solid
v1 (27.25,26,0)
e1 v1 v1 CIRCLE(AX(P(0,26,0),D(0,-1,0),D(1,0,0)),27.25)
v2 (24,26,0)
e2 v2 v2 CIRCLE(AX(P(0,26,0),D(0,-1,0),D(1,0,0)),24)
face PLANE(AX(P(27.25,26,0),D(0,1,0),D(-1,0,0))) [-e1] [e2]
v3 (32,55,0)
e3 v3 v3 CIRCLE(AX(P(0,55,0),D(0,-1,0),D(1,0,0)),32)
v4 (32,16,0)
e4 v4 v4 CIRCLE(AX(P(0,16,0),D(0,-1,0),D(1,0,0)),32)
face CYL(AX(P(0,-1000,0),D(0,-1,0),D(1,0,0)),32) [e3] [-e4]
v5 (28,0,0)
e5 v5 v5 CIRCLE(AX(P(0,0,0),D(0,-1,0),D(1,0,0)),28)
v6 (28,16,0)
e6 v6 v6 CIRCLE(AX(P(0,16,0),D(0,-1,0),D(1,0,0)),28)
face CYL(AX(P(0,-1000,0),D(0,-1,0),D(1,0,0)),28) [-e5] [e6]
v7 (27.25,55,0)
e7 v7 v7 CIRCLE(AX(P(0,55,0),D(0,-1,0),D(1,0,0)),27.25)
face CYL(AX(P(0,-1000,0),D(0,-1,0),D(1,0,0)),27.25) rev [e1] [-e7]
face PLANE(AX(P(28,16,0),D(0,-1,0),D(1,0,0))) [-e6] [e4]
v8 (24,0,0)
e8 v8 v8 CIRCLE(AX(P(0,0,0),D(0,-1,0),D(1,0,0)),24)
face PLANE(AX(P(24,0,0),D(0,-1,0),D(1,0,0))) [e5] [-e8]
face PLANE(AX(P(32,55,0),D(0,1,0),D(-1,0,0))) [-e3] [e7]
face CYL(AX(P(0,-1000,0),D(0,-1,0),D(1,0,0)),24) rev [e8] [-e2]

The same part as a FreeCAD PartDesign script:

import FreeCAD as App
import Part
import Sketcher
from FreeCAD import Vector

doc = App.newDocument("Part")
body = doc.addObject("PartDesign::Body", "Body")

# Sketch on XY plane
sketch1 = body.newObject("Sketcher::SketchObject", "Sketch")
sketch1.AttachmentSupport = (doc.getObject("XY_Plane"), [""])
sketch1.MapMode = "FlatFace"
sketch1.addGeometry(Part.LineSegment(Vector(24, 0, 0), Vector(28, 0, 0)), False)
sketch1.addGeometry(Part.LineSegment(Vector(28, 0, 0), Vector(28, 16, 0)), False)
sketch1.addGeometry(Part.LineSegment(Vector(28, 16, 0), Vector(32, 16, 0)), False)
sketch1.addGeometry(Part.LineSegment(Vector(32, 16, 0), Vector(32, 55, 0)), False)
sketch1.addGeometry(Part.LineSegment(Vector(32, 55, 0), Vector(27.2, 55, 0)), False)
sketch1.addGeometry(Part.LineSegment(Vector(27.2, 55, 0), Vector(27.2, 26, 0)), False)
sketch1.addGeometry(Part.LineSegment(Vector(27.2, 26, 0), Vector(24, 26, 0)), False)
sketch1.addGeometry(Part.LineSegment(Vector(24, 26, 0), Vector(24, 0, 0)), False)
sketch1.addConstraint(Sketcher.Constraint("Coincident", 0, 2, 1, 1))
sketch1.addConstraint(Sketcher.Constraint("Coincident", 1, 2, 2, 1))
sketch1.addConstraint(Sketcher.Constraint("Coincident", 2, 2, 3, 1))
sketch1.addConstraint(Sketcher.Constraint("Coincident", 3, 2, 4, 1))
sketch1.addConstraint(Sketcher.Constraint("Coincident", 4, 2, 5, 1))
sketch1.addConstraint(Sketcher.Constraint("Coincident", 5, 2, 6, 1))
sketch1.addConstraint(Sketcher.Constraint("Coincident", 6, 2, 7, 1))
sketch1.addConstraint(Sketcher.Constraint("Coincident", 7, 2, 0, 1))
sketch1.addConstraint(Sketcher.Constraint("Horizontal", 0))
sketch1.addConstraint(Sketcher.Constraint("Vertical", 1))
sketch1.addConstraint(Sketcher.Constraint("Horizontal", 2))
sketch1.addConstraint(Sketcher.Constraint("Vertical", 3))
sketch1.addConstraint(Sketcher.Constraint("Horizontal", 4))
sketch1.addConstraint(Sketcher.Constraint("Vertical", 5))
sketch1.addConstraint(Sketcher.Constraint("Horizontal", 6))
sketch1.addConstraint(Sketcher.Constraint("Vertical", 7))
sketch1.addConstraint(Sketcher.Constraint("PointOnObject", 0, 2, -1))
sketch1.addConstraint(Sketcher.Constraint("Equal", 0, 2))
sketch1.addConstraint(Sketcher.Constraint("DistanceX", 0, 1, 0, 2, 4.0))
sketch1.addConstraint(Sketcher.Constraint("DistanceY", 1, 1, 1, 2, 16.0))
sketch1.addConstraint(Sketcher.Constraint("DistanceY", 3, 1, 3, 2, 39.0))
sketch1.addConstraint(Sketcher.Constraint("DistanceY", 5, 2, 5, 1, 29.0))
sketch1.addConstraint(Sketcher.Constraint("DistanceX", -1, 1, 0, 2, 28.0))
sketch1.addConstraint(Sketcher.Constraint("DistanceX", 4, 2, 4, 1, 4.75))
revolution = body.newObject("PartDesign::Revolution", "Revolution")
revolution.Profile = sketch1
revolution.ReferenceAxis = (sketch1, ["V_Axis"])
revolution.Angle = 360

doc.recompute()
